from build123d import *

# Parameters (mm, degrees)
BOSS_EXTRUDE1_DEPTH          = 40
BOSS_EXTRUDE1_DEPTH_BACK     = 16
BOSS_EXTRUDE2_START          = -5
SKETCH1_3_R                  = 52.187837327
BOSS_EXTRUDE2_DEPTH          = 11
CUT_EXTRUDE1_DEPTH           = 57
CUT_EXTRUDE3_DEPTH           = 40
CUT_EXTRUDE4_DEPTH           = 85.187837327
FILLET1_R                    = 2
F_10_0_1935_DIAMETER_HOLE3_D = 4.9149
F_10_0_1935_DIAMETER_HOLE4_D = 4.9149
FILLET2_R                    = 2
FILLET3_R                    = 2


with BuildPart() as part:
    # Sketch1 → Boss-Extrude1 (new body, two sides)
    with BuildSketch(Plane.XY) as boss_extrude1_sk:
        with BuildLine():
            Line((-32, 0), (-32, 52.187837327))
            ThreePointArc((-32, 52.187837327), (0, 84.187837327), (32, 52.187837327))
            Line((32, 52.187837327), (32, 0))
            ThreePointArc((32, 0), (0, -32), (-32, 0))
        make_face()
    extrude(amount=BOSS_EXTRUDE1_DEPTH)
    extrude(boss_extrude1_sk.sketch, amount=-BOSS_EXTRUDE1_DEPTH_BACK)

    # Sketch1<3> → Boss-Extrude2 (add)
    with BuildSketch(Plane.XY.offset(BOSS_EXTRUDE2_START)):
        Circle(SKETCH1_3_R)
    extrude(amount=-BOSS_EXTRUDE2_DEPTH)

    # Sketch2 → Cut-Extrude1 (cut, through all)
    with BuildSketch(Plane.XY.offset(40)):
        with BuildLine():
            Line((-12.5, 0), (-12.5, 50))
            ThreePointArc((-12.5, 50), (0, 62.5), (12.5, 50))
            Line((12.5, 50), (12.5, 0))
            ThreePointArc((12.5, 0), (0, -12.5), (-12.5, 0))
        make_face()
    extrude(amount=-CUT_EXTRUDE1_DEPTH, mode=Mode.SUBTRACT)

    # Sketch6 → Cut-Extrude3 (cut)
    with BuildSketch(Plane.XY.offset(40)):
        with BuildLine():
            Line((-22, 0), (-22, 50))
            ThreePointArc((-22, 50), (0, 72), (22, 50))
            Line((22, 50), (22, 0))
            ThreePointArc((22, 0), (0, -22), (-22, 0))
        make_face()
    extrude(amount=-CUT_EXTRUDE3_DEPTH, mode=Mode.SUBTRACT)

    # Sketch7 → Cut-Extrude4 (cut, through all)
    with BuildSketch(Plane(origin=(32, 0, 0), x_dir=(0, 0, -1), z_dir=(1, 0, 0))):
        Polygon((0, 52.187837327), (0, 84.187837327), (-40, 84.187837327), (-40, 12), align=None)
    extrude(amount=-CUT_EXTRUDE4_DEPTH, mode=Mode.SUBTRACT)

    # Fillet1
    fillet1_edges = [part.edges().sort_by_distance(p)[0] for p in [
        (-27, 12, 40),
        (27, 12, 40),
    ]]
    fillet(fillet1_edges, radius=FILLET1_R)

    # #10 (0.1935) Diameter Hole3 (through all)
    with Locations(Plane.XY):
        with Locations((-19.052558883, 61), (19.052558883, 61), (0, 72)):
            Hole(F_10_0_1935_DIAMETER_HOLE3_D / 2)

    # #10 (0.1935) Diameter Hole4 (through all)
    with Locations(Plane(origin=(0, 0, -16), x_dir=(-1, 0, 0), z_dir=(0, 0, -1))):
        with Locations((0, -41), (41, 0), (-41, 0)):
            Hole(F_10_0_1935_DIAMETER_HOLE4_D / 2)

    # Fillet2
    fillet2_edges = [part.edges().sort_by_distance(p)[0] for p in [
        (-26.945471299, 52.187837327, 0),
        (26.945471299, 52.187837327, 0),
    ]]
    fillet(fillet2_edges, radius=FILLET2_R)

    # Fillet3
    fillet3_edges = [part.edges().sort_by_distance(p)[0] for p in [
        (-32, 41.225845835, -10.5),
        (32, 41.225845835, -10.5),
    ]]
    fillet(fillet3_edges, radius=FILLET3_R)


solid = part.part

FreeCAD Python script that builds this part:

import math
import FreeCAD as App
import Part
import Sketcher
Q = App.Units.Quantity


def edges_at(feature, points):
    """Names of the edges that pass closest to the given points."""
    edges = feature.Shape.Edges
    near = lambda p: min(range(len(edges)), key=lambda i: edges[i].distToShape(Part.Vertex(*p))[0])
    return sorted({f"Edge{near(p) + 1}" for p in points})


def add_polygon(sketch, points):
    """Adds a closed chain of lines whose ends are joined by coincident constraints."""
    first, n = sketch.GeometryCount, len(points)
    for a, b in zip(points, points[1:] + points[:1]):
        sketch.addGeometry(Part.LineSegment(App.Vector(*a, 0), App.Vector(*b, 0)), False)
    for i in range(n):
        sketch.addConstraint(Sketcher.Constraint("Coincident", first + i, 2, first + (i + 1) % n, 1))

doc = App.newDocument("Part")
params = doc.addObject("Spreadsheet::Sheet", "Params")
for row, (alias, value) in enumerate([
    ("sketch1_radius", "32 mm"),
    ("pad1_length", "40 mm"),
    ("pad1_length2", "16 mm"),
    ("pad2_length", "11 mm"),
    ("sketch3_radius", "12.5 mm"),
    ("sketch3_height", "50 mm"),
    ("sketch4_radius", "22 mm"),
    ("sketch4_height", "50 mm"),
    ("pocket2_length", "40 mm"),
    ("sketch5_width", "32 mm"),
    ("sketch5_height", "40 mm"),
    ("fillet_radius", "2 mm"),
    ("hole_diameter", "4.9149 mm"),
    ("hole2_diameter", "4.9149 mm"),
    ("fillet2_radius", "2 mm"),
    ("fillet3_radius", "2 mm"),
], start=1):
    params.set(f"A{row}", alias)
    params.set(f"B{row}", "=" + value)
    params.setAlias(f"B{row}", alias)

body = doc.addObject("PartDesign::Body", "Body")

# Sketch on XY plane
sketch1 = body.newObject("Sketcher::SketchObject", "Sketch")
sketch1.AttachmentSupport = (doc.getObject("XY_Plane"), [""])
sketch1.MapMode = "FlatFace"
sketch1.addGeometry([
    Part.LineSegment(App.Vector(-32, 52, 0), App.Vector(-32, 0, 0)),
    Part.ArcOfCircle(Part.Circle(App.Vector(0, 0, 0), App.Vector(0, 0, 1), 32), math.radians(180), math.radians(360)),
    Part.LineSegment(App.Vector(32, 0, 0), App.Vector(32, 52, 0)),
    Part.ArcOfCircle(Part.Circle(App.Vector(0, 52, 0), App.Vector(0, 0, 1), 32), math.radians(0), math.radians(180)),
], False)
sketch1.addConstraint([
    Sketcher.Constraint("Tangent", 0, 2, 1, 1),
    Sketcher.Constraint("Tangent", 1, 2, 2, 1),
    Sketcher.Constraint("Tangent", 2, 2, 3, 1),
    Sketcher.Constraint("Tangent", 3, 2, 0, 1),
    Sketcher.Constraint("Vertical", 0),
    Sketcher.Constraint("Vertical", 2),
    Sketcher.Constraint("Coincident", 1, 3, -1, 1),
    Sketcher.Constraint("Radius", 1, Q("32 mm")),
    Sketcher.Constraint("DistanceY", 0, 2, 0, 1, Q("52.187837 mm")),
])
sketch1.setExpression("Constraints[7]", "Params.sketch1_radius")
pad1 = body.newObject("PartDesign::Pad", "Pad")
pad1.Profile = sketch1
pad1.Type = "TwoLengths"
pad1.setExpression("Length", "Params.pad1_length")
pad1.setExpression("Length2", "Params.pad1_length2")

# Sketch on XY plane
sketch2 = body.newObject("Sketcher::SketchObject", "Sketch001")
sketch2.AttachmentSupport = (doc.getObject("XY_Plane"), [""])
sketch2.MapMode = "FlatFace"
sketch2.AttachmentOffset = App.Placement(App.Vector(0, 0, -5), App.Rotation())
sketch2.addGeometry(Part.Circle(App.Vector(0, 0, 0), App.Vector(0, 0, 1), 52), False)
sketch2.addConstraint([
    Sketcher.Constraint("Coincident", 0, 3, -1, 1),
    Sketcher.Constraint("Diameter", 0, Q("104.375675 mm")),
])
pad2 = body.newObject("PartDesign::Pad", "Pad001")
pad2.Profile = sketch2
pad2.setExpression("Length", "Params.pad2_length")
pad2.Reversed = True

# Sketch on XY plane
sketch3 = body.newObject("Sketcher::SketchObject", "Sketch002")
sketch3.AttachmentSupport = (doc.getObject("XY_Plane"), [""])
sketch3.MapMode = "FlatFace"
sketch3.AttachmentOffset = App.Placement(App.Vector(0, 0, 40), App.Rotation())
sketch3.addGeometry([
    Part.LineSegment(App.Vector(-12, 50, 0), App.Vector(-12, 0, 0)),
    Part.ArcOfCircle(Part.Circle(App.Vector(0, 0, 0), App.Vector(0, 0, 1), 12), math.radians(180), math.radians(360)),
    Part.LineSegment(App.Vector(12, 0, 0), App.Vector(12, 50, 0)),
    Part.ArcOfCircle(Part.Circle(App.Vector(0, 50, 0), App.Vector(0, 0, 1), 12), math.radians(0), math.radians(180)),
], False)
sketch3.addConstraint([
    Sketcher.Constraint("Tangent", 0, 2, 1, 1),
    Sketcher.Constraint("Tangent", 1, 2, 2, 1),
    Sketcher.Constraint("Tangent", 2, 2, 3, 1),
    Sketcher.Constraint("Tangent", 3, 2, 0, 1),
    Sketcher.Constraint("Vertical", 0),
    Sketcher.Constraint("Vertical", 2),
    Sketcher.Constraint("Coincident", 1, 3, -1, 1),
    Sketcher.Constraint("Radius", 1, Q("12.5 mm")),
    Sketcher.Constraint("DistanceY", 0, 2, 0, 1, Q("50 mm")),
])
sketch3.setExpression("Constraints[7]", "Params.sketch3_radius")
sketch3.setExpression("Constraints[8]", "Params.sketch3_height")
pocket1 = body.newObject("PartDesign::Pocket", "Pocket")
pocket1.Profile = sketch3
pocket1.Type = "ThroughAll"

# Sketch on XY plane
sketch4 = body.newObject("Sketcher::SketchObject", "Sketch003")
sketch4.AttachmentSupport = (doc.getObject("XY_Plane"), [""])
sketch4.MapMode = "FlatFace"
sketch4.AttachmentOffset = App.Placement(App.Vector(0, 0, 40), App.Rotation())
sketch4.addGeometry([
    Part.LineSegment(App.Vector(-22, 50, 0), App.Vector(-22, 0, 0)),
    Part.ArcOfCircle(Part.Circle(App.Vector(0, 0, 0), App.Vector(0, 0, 1), 22), math.radians(180), math.radians(360)),
    Part.LineSegment(App.Vector(22, 0, 0), App.Vector(22, 50, 0)),
    Part.ArcOfCircle(Part.Circle(App.Vector(0, 50, 0), App.Vector(0, 0, 1), 22), math.radians(0), math.radians(180)),
], False)
sketch4.addConstraint([
    Sketcher.Constraint("Tangent", 0, 2, 1, 1),
    Sketcher.Constraint("Tangent", 1, 2, 2, 1),
    Sketcher.Constraint("Tangent", 2, 2, 3, 1),
    Sketcher.Constraint("Tangent", 3, 2, 0, 1),
    Sketcher.Constraint("Vertical", 0),
    Sketcher.Constraint("Vertical", 2),
    Sketcher.Constraint("Coincident", 1, 3, -1, 1),
    Sketcher.Constraint("Radius", 1, Q("22 mm")),
    Sketcher.Constraint("DistanceY", 0, 2, 0, 1, Q("50 mm")),
])
sketch4.setExpression("Constraints[7]", "Params.sketch4_radius")
sketch4.setExpression("Constraints[8]", "Params.sketch4_height")
pocket2 = body.newObject("PartDesign::Pocket", "Pocket001")
pocket2.Profile = sketch4
pocket2.setExpression("Length", "Params.pocket2_length")

# Sketch on YZ plane
sketch5 = body.newObject("Sketcher::SketchObject", "Sketch004")
sketch5.AttachmentSupport = (doc.getObject("YZ_Plane"), [""])
sketch5.MapMode = "FlatFace"
sketch5.AttachmentOffset = App.Placement(App.Vector(0, 0, 32), App.Rotation())
add_polygon(sketch5, [(52, 0), (84, 0), (84, 40), (12, 40)])  # lines 0-3
sketch5.addConstraint([
    Sketcher.Constraint("Horizontal", 0),
    Sketcher.Constraint("Vertical", 1),
    Sketcher.Constraint("Horizontal", 2),
    Sketcher.Constraint("PointOnObject", 0, 2, -1),
    Sketcher.Constraint("DistanceX", 0, 1, 0, 2, Q("32 mm")),
    Sketcher.Constraint("DistanceY", 1, 1, 1, 2, Q("40 mm")),
    Sketcher.Constraint("DistanceX", -1, 1, 2, 2, Q("12 mm")),
    Sketcher.Constraint("Distance", 3, Q("56.701519 mm")),
])
sketch5.setExpression("Constraints[8]", "Params.sketch5_width")
sketch5.setExpression("Constraints[9]", "Params.sketch5_height")
pocket3 = body.newObject("PartDesign::Pocket", "Pocket002")
pocket3.Profile = sketch5
pocket3.Type = "ThroughAll"
doc.recompute()

fillet = body.newObject("PartDesign::Fillet", "Fillet")
fillet.Base = (pocket3, edges_at(pocket3, [(-27, 12, 40), (27, 12, 40)]))
fillet.setExpression("Radius", "Params.fillet_radius")

# Sketch on XY plane
sketch6 = body.newObject("Sketcher::SketchObject", "Sketch005")
sketch6.AttachmentSupport = (doc.getObject("XY_Plane"), [""])
sketch6.MapMode = "FlatFace"
sketch6.addGeometry([
    Part.Circle(App.Vector(-19.1, 61, 0), App.Vector(0, 0, 1), 2.5),
    Part.Circle(App.Vector(19.1, 61, 0), App.Vector(0, 0, 1), 2.5),
    Part.Circle(App.Vector(0, 72, 0), App.Vector(0, 0, 1), 2.5),
], False)
sketch6.addConstraint([
    Sketcher.Constraint("Equal", 0, 1),
    Sketcher.Constraint("Equal", 1, 2),
    Sketcher.Constraint("Symmetric", 0, 3, 1, 3, -2),
    Sketcher.Constraint("PointOnObject", 2, 3, -2),
    Sketcher.Constraint("DistanceY", -1, 1, 0, 3, Q("61 mm")),
    Sketcher.Constraint("DistanceY", -1, 1, 2, 3, Q("72 mm")),
    Sketcher.Constraint("Diameter", 0, Q("4.9149 mm")),
    Sketcher.Constraint("DistanceX", 0, 3, -1, 1, Q("19.052559 mm")),
])
doc.recompute()
hole = body.newObject("PartDesign::Hole", "Hole")
hole.Profile = sketch6
hole.ThreadType = "None"
hole.setExpression("Diameter", "Params.hole_diameter")
hole.DepthType = "ThroughAll"

# Sketch on XY plane
sketch7 = body.newObject("Sketcher::SketchObject", "Sketch006")
sketch7.AttachmentSupport = (doc.getObject("XY_Plane"), [""])
sketch7.MapMode = "FlatFace"
sketch7.AttachmentOffset = App.Placement(App.Vector(0, 0, -16), App.Rotation())
sketch7.addGeometry([
    Part.Circle(App.Vector(0, -41, 0), App.Vector(0, 0, 1), 2.5),
    Part.Circle(App.Vector(-41, 0, 0), App.Vector(0, 0, 1), 2.5),
    Part.Circle(App.Vector(41, 0, 0), App.Vector(0, 0, 1), 2.5),
], False)
sketch7.addConstraint([
    Sketcher.Constraint("Equal", 0, 1),
    Sketcher.Constraint("Equal", 1, 2),
    Sketcher.Constraint("Symmetric", 1, 3, 2, 3, -1, 1),
    Sketcher.Constraint("PointOnObject", 0, 3, -2),
    Sketcher.Constraint("PointOnObject", 1, 3, -1),
    Sketcher.Constraint("DistanceY", 0, 3, -1, 1, Q("41 mm")),
    Sketcher.Constraint("DistanceX", 1, 3, -1, 1, Q("41 mm")),
    Sketcher.Constraint("Diameter", 0, Q("4.9149 mm")),
])
doc.recompute()
hole2 = body.newObject("PartDesign::Hole", "Hole001")
hole2.Profile = sketch7
hole2.ThreadType = "None"
hole2.setExpression("Diameter", "Params.hole2_diameter")
hole2.DepthType = "ThroughAll"
hole2.Reversed = True
doc.recompute()

fillet2 = body.newObject("PartDesign::Fillet", "Fillet001")
fillet2.Base = (hole2, edges_at(hole2, [(-26.945, 52.188, 0), (26.945, 52.188, 0)]))
fillet2.setExpression("Radius", "Params.fillet2_radius")
doc.recompute()

fillet3 = body.newObject("PartDesign::Fillet", "Fillet002")
fillet3.Base = (fillet2, edges_at(fillet2, [(-32, 41.226, -10.5), (32, 41.226, -10.5)]))
fillet3.setExpression("Radius", "Params.fillet3_radius")

doc.recompute()
